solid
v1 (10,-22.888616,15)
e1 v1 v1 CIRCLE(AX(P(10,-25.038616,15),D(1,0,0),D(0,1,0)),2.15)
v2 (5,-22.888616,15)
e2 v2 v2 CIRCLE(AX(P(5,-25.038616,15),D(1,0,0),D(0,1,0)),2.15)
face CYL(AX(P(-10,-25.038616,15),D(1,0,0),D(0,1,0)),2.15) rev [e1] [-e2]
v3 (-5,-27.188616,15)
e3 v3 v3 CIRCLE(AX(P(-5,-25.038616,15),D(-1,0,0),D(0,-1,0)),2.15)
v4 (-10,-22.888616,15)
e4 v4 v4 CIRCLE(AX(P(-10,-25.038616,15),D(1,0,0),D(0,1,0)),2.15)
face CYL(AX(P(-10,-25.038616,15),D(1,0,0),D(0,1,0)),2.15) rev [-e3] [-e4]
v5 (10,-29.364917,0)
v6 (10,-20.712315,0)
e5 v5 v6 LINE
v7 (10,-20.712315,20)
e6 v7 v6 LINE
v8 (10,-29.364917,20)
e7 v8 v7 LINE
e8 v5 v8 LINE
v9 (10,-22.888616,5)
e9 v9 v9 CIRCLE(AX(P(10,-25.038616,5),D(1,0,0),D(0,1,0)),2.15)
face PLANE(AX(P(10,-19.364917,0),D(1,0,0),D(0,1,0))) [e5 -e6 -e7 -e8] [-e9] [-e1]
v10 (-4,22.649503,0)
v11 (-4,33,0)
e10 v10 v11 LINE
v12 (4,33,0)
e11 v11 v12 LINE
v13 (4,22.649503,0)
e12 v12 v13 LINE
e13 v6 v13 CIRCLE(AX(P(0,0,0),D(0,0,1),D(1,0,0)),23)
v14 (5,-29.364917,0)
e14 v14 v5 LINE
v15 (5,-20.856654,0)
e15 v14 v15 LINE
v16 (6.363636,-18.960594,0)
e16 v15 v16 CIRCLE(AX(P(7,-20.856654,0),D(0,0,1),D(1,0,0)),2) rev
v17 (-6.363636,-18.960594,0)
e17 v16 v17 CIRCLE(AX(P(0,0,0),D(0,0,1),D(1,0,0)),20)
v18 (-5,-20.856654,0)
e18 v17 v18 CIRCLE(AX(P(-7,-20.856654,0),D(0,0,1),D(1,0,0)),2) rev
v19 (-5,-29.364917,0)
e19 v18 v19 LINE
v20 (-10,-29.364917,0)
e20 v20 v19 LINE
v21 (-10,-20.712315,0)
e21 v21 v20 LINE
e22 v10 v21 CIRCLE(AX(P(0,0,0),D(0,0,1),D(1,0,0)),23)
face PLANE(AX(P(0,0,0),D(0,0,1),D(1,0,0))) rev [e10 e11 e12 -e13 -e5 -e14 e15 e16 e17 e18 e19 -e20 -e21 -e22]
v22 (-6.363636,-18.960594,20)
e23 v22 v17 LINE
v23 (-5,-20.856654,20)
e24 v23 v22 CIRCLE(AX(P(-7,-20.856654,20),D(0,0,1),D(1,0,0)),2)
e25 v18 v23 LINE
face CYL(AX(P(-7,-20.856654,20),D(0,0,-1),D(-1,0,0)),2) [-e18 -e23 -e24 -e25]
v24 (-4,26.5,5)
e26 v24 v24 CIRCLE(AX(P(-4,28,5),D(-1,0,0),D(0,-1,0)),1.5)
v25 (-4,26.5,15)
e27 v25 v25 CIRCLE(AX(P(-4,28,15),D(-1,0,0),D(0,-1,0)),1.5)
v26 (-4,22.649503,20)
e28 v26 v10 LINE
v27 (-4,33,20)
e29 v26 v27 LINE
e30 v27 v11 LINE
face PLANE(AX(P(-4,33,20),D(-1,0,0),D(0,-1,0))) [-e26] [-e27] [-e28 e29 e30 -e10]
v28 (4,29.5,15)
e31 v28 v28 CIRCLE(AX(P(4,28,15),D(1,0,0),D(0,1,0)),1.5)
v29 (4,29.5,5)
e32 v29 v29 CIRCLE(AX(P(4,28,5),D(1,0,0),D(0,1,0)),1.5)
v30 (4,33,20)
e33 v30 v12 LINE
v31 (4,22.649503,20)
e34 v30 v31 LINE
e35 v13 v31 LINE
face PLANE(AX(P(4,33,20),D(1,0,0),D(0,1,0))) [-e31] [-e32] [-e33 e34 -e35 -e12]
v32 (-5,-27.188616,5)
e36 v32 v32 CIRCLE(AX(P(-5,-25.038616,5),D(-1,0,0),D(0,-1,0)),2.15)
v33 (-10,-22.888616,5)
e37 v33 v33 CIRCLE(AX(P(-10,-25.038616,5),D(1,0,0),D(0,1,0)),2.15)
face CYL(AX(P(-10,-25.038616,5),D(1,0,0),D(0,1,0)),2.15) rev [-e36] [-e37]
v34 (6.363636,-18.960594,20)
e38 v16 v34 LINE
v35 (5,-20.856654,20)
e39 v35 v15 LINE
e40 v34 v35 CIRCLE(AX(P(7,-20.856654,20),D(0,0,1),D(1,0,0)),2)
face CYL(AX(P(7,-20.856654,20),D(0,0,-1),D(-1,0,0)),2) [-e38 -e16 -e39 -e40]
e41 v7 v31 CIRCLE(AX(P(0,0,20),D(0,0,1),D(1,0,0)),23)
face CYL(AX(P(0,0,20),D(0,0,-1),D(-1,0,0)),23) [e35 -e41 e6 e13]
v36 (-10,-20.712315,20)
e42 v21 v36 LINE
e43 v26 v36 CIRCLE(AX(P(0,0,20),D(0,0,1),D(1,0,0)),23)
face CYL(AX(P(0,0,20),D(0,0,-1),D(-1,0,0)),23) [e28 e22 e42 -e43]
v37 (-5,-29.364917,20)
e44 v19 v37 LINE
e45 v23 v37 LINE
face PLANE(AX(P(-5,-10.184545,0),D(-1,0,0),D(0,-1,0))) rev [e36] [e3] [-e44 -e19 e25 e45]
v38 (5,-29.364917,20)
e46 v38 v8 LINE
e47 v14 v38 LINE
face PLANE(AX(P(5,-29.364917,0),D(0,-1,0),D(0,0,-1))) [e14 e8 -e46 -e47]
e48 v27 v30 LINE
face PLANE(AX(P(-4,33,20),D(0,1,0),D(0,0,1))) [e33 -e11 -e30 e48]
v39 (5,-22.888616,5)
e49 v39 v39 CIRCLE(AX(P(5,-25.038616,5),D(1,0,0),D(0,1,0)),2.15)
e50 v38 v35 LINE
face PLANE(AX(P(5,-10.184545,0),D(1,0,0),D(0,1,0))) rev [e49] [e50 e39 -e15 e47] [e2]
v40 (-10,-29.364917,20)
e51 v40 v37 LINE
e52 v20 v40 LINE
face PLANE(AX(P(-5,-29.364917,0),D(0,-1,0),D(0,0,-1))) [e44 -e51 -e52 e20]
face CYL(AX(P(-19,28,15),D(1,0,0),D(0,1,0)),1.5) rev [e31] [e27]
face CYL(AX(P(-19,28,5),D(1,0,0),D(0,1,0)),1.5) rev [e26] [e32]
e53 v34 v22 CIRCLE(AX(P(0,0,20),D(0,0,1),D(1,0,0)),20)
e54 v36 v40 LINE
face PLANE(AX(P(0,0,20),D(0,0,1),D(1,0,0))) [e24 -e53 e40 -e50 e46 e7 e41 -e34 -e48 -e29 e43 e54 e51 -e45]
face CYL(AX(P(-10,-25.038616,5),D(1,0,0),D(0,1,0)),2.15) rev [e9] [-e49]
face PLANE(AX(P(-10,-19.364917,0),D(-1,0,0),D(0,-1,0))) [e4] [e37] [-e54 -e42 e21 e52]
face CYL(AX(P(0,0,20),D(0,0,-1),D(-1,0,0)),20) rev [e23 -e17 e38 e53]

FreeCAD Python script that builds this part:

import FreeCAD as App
import Part
import Sketcher

V = App.Vector


def edges_at(feature, points):
    """Names of the edges that pass closest to the given points."""
    edges = feature.Shape.Edges
    near = lambda p: min(range(len(edges)), key=lambda i: edges[i].distToShape(Part.Vertex(*p))[0])
    return sorted({f"Edge{near(p) + 1}" for p in points})

doc = App.newDocument("Part")
params = doc.addObject("Spreadsheet::Sheet", "Params")
for row, (alias, value) in enumerate([
    ("sketch1_diameter", "46 mm"),
    ("sketch1_diameter2", "40 mm"),
    ("pad1_length", "20 mm"),
    ("sketch2_width", "10 mm"),
    ("pocket1_length", "20 mm"),
    ("sketch3_width", "5 mm"),
    ("sketch3_height", "10 mm"),
    ("pad2_length", "20 mm"),
    ("fillet_radius", "2 mm"),
    ("sketch4_diameter", "4.3 mm"),
    ("pocket2_length", "20 mm"),
    ("sketch5_width", "8 mm"),
    ("sketch5_height", "11 mm"),
    ("pad3_length", "20 mm"),
    ("sketch6_diameter", "3 mm"),
    ("pocket3_length", "23 mm"),
], start=1):
    params.set(f"A{row}", alias)
    params.set(f"B{row}", "=" + value)
    params.setAlias(f"B{row}", alias)

body = doc.addObject("PartDesign::Body", "Body")

sketch1 = body.newObject("Sketcher::SketchObject", "Sketch")
sketch1.AttachmentSupport = (doc.getObject("XY_Plane"), [""])
sketch1.MapMode = "FlatFace"
sketch1.addGeometry(Part.Circle(V(0, 0, 0), V(0, 0, 1), 23), False)
sketch1.addGeometry(Part.Circle(V(0, 0, 0), V(0, 0, 1), 20), False)
sketch1.addConstraint(Sketcher.Constraint("Coincident", 0, 3, -1, 1))
sketch1.addConstraint(Sketcher.Constraint("Coincident", 1, 3, -1, 1))
sketch1.addConstraint(Sketcher.Constraint("Diameter", 0, 46.0))
sketch1.addConstraint(Sketcher.Constraint("Diameter", 1, 40.0))
sketch1.setExpression("Constraints[2]", "Params.sketch1_diameter")
sketch1.setExpression("Constraints[3]", "Params.sketch1_diameter2")
pad1 = body.newObject("PartDesign::Pad", "Pad")
pad1.Profile = sketch1
pad1.setExpression("Length", "Params.pad1_length")

sketch2 = body.newObject("Sketcher::SketchObject", "Sketch001")
sketch2.AttachmentSupport = (doc.getObject("XY_Plane"), [""])
sketch2.MapMode = "FlatFace"
sketch2.AttachmentOffset = App.Placement(V(0, 0, 20), App.Rotation())
sketch2.addGeometry(Part.LineSegment(V(-5, -10.184545, 0), V(-5, -29.815455, 0)), False)
sketch2.addGeometry(Part.LineSegment(V(-5, -29.815455, 0), V(5, -29.815455, 0)), False)
sketch2.addGeometry(Part.LineSegment(V(5, -29.815455, 0), V(5, -10.184545, 0)), False)
sketch2.addGeometry(Part.LineSegment(V(5, -10.184545, 0), V(-5, -10.184545, 0)), False)
sketch2.addConstraint(Sketcher.Constraint("Coincident", 0, 2, 1, 1))
sketch2.addConstraint(Sketcher.Constraint("Coincident", 1, 2, 2, 1))
sketch2.addConstraint(Sketcher.Constraint("Coincident", 2, 2, 3, 1))
sketch2.addConstraint(Sketcher.Constraint("Coincident", 3, 2, 0, 1))
sketch2.addConstraint(Sketcher.Constraint("Vertical", 0))
sketch2.addConstraint(Sketcher.Constraint("Horizontal", 1))
sketch2.addConstraint(Sketcher.Constraint("Vertical", 2))
sketch2.addConstraint(Sketcher.Constraint("Horizontal", 3))
sketch2.addConstraint(Sketcher.Constraint("DistanceX", 1, 1, 1, 2, 10.0))
sketch2.addConstraint(Sketcher.Constraint("DistanceX", 0, 2, -1, 1, 5.0))
sketch2.addConstraint(Sketcher.Constraint("DistanceY", 0, 2, 0, 1, 19.63091))
sketch2.addConstraint(Sketcher.Constraint("DistanceY", 0, 2, -1, 1, 29.815455))
sketch2.setExpression("Constraints[8]", "Params.sketch2_width")
pocket1 = body.newObject("PartDesign::Pocket", "Pocket")
pocket1.Profile = sketch2
pocket1.setExpression("Length", "Params.pocket1_length")

sketch3 = body.newObject("Sketcher::SketchObject", "Sketch002")
sketch3.AttachmentSupport = (doc.getObject("XY_Plane"), [""])
sketch3.MapMode = "FlatFace"
sketch3.AttachmentOffset = App.Placement(V(0, 0, 20), App.Rotation())
sketch3.addGeometry(Part.LineSegment(V(-10, -19.364917, 0), V(-10, -29.364917, 0)), False)
sketch3.addGeometry(Part.LineSegment(V(-10, -29.364917, 0), V(-5, -29.364917, 0)), False)
sketch3.addGeometry(Part.LineSegment(V(-5, -29.364917, 0), V(-5, -19.364917, 0)), False)
sketch3.addGeometry(Part.LineSegment(V(-5, -19.364917, 0), V(-10, -19.364917, 0)), False)
sketch3.addGeometry(Part.LineSegment(V(5, -19.364917, 0), V(5, -29.364917, 0)), False)
sketch3.addGeometry(Part.LineSegment(V(5, -29.364917, 0), V(10, -29.364917, 0)), False)
sketch3.addGeometry(Part.LineSegment(V(10, -29.364917, 0), V(10, -19.364917, 0)), False)
sketch3.addGeometry(Part.LineSegment(V(10, -19.364917, 0), V(5, -19.364917, 0)), False)
sketch3.addConstraint(Sketcher.Constraint("Coincident", 0, 2, 1, 1))
sketch3.addConstraint(Sketcher.Constraint("Coincident", 1, 2, 2, 1))
sketch3.addConstraint(Sketcher.Constraint("Coincident", 2, 2, 3, 1))
sketch3.addConstraint(Sketcher.Constraint("Coincident", 3, 2, 0, 1))
sketch3.addConstraint(Sketcher.Constraint("Coincident", 4, 2, 5, 1))
sketch3.addConstraint(Sketcher.Constraint("Coincident", 5, 2, 6, 1))
sketch3.addConstraint(Sketcher.Constraint("Coincident", 6, 2, 7, 1))
sketch3.addConstraint(Sketcher.Constraint("Coincident", 7, 2, 4, 1))
sketch3.addConstraint(Sketcher.Constraint("Vertical", 0))
sketch3.addConstraint(Sketcher.Constraint("Horizontal", 1))
sketch3.addConstraint(Sketcher.Constraint("Vertical", 2))
sketch3.addConstraint(Sketcher.Constraint("Horizontal", 3))
sketch3.addConstraint(Sketcher.Constraint("Vertical", 4))
sketch3.addConstraint(Sketcher.Constraint("Horizontal", 5))
sketch3.addConstraint(Sketcher.Constraint("Vertical", 6))
sketch3.addConstraint(Sketcher.Constraint("Horizontal", 7))
sketch3.addConstraint(Sketcher.Constraint("Symmetric", 1, 2, 4, 2, -2))
sketch3.addConstraint(Sketcher.Constraint("Symmetric", 3, 2, 6, 2, -2))
sketch3.addConstraint(Sketcher.Constraint("DistanceX", 1, 1, 1, 2, 5.0))
sketch3.addConstraint(Sketcher.Constraint("DistanceY", 0, 2, 0, 1, 10.0))
sketch3.addConstraint(Sketcher.Constraint("DistanceX", 0, 2, -1, 1, 10.0))
sketch3.addConstraint(Sketcher.Constraint("DistanceY", 0, 2, -1, 1, 29.364917))
sketch3.setExpression("Constraints[18]", "Params.sketch3_width")
sketch3.setExpression("Constraints[19]", "Params.sketch3_height")
pad2 = body.newObject("PartDesign::Pad", "Pad001")
pad2.Profile = sketch3
pad2.setExpression("Length", "Params.pad2_length")
pad2.Reversed = True
doc.recompute()

fillet = body.newObject("PartDesign::Fillet", "Fillet")
fillet.Base = (pad2, edges_at(pad2, [(5, -19.365, 10), (-5, -19.365, 10)]))
fillet.setExpression("Radius", "Params.fillet_radius")

sketch4 = body.newObject("Sketcher::SketchObject", "Sketch003")
sketch4.AttachmentSupport = (doc.getObject("YZ_Plane"), [""])
sketch4.MapMode = "FlatFace"
sketch4.AttachmentOffset = App.Placement(V(0, 0, 10), App.Rotation())
sketch4.addGeometry(Part.Circle(V(-25.038616, 15, 0), V(0, 0, 1), 2.15), False)
sketch4.addGeometry(Part.Circle(V(-25.038616, 5, 0), V(0, 0, 1), 2.15), False)
sketch4.addConstraint(Sketcher.Constraint("Equal", 0, 1))
sketch4.addConstraint(Sketcher.Constraint("Vertical", 0, 3, 1, 3))
sketch4.addConstraint(Sketcher.Constraint("Diameter", 0, 4.3))
sketch4.addConstraint(Sketcher.Constraint("DistanceY", -1, 1, 0, 3, 15.0))
sketch4.addConstraint(Sketcher.Constraint("DistanceY", -1, 1, 1, 3, 5.0))
sketch4.addConstraint(Sketcher.Constraint("DistanceX", 0, 3, -1, 1, 25.038616))
sketch4.setExpression("Constraints[2]", "Params.sketch4_diameter")
pocket2 = body.newObject("PartDesign::Pocket", "Pocket001")
pocket2.Profile = sketch4
pocket2.setExpression("Length", "Params.pocket2_length")

sketch5 = body.newObject("Sketcher::SketchObject", "Sketch004")
sketch5.AttachmentSupport = (doc.getObject("XY_Plane"), [""])
sketch5.MapMode = "FlatFace"
sketch5.addGeometry(Part.LineSegment(V(4, 33, 0), V(4, 22, 0)), False)
sketch5.addGeometry(Part.LineSegment(V(4, 22, 0), V(-4, 22, 0)), False)
sketch5.addGeometry(Part.LineSegment(V(-4, 22, 0), V(-4, 33, 0)), False)
sketch5.addGeometry(Part.LineSegment(V(-4, 33, 0), V(4, 33, 0)), False)
sketch5.addConstraint(Sketcher.Constraint("Coincident", 0, 2, 1, 1))
sketch5.addConstraint(Sketcher.Constraint("Coincident", 1, 2, 2, 1))
sketch5.addConstraint(Sketcher.Constraint("Coincident", 2, 2, 3, 1))
sketch5.addConstraint(Sketcher.Constraint("Coincident", 3, 2, 0, 1))
sketch5.addConstraint(Sketcher.Constraint("Vertical", 0))
sketch5.addConstraint(Sketcher.Constraint("Horizontal", 1))
sketch5.addConstraint(Sketcher.Constraint("Vertical", 2))
sketch5.addConstraint(Sketcher.Constraint("Horizontal", 3))
sketch5.addConstraint(Sketcher.Constraint("DistanceX", 1, 2, 1, 1, 8.0))
sketch5.addConstraint(Sketcher.Constraint("DistanceY", 0, 2, 0, 1, 11.0))
sketch5.addConstraint(Sketcher.Constraint("DistanceX", -1, 1, 0, 2, 4.0))
sketch5.addConstraint(Sketcher.Constraint("DistanceY", -1, 1, 0, 2, 22.0))
sketch5.setExpression("Constraints[8]", "Params.sketch5_width")
sketch5.setExpression("Constraints[9]", "Params.sketch5_height")
pad3 = body.newObject("PartDesign::Pad", "Pad002")
pad3.Profile = sketch5
pad3.setExpression("Length", "Params.pad3_length")

sketch6 = body.newObject("Sketcher::SketchObject", "Sketch005")
sketch6.AttachmentSupport = (doc.getObject("YZ_Plane"), [""])
sketch6.MapMode = "FlatFace"
sketch6.AttachmentOffset = App.Placement(V(0, 0, 4), App.Rotation())
sketch6.addGeometry(Part.Circle(V(28, 5, 0), V(0, 0, 1), 1.5), False)
sketch6.addGeometry(Part.Circle(V(28, 15, 0), V(0, 0, 1), 1.5), False)
sketch6.addConstraint(Sketcher.Constraint("Equal", 0, 1))
sketch6.addConstraint(Sketcher.Constraint("Vertical", 0, 3, 1, 3))
sketch6.addConstraint(Sketcher.Constraint("Diameter", 0, 3.0))
sketch6.addConstraint(Sketcher.Constraint("DistanceX", -1, 1, 0, 3, 28.0))
sketch6.addConstraint(Sketcher.Constraint("DistanceY", -1, 1, 0, 3, 5.0))
sketch6.addConstraint(Sketcher.Constraint("DistanceY", -1, 1, 1, 3, 15.0))
sketch6.setExpression("Constraints[2]", "Params.sketch6_diameter")
pocket3 = body.newObject("PartDesign::Pocket", "Pocket002")
pocket3.Profile = sketch6
pocket3.setExpression("Length", "Params.pocket3_length")

doc.recompute()
